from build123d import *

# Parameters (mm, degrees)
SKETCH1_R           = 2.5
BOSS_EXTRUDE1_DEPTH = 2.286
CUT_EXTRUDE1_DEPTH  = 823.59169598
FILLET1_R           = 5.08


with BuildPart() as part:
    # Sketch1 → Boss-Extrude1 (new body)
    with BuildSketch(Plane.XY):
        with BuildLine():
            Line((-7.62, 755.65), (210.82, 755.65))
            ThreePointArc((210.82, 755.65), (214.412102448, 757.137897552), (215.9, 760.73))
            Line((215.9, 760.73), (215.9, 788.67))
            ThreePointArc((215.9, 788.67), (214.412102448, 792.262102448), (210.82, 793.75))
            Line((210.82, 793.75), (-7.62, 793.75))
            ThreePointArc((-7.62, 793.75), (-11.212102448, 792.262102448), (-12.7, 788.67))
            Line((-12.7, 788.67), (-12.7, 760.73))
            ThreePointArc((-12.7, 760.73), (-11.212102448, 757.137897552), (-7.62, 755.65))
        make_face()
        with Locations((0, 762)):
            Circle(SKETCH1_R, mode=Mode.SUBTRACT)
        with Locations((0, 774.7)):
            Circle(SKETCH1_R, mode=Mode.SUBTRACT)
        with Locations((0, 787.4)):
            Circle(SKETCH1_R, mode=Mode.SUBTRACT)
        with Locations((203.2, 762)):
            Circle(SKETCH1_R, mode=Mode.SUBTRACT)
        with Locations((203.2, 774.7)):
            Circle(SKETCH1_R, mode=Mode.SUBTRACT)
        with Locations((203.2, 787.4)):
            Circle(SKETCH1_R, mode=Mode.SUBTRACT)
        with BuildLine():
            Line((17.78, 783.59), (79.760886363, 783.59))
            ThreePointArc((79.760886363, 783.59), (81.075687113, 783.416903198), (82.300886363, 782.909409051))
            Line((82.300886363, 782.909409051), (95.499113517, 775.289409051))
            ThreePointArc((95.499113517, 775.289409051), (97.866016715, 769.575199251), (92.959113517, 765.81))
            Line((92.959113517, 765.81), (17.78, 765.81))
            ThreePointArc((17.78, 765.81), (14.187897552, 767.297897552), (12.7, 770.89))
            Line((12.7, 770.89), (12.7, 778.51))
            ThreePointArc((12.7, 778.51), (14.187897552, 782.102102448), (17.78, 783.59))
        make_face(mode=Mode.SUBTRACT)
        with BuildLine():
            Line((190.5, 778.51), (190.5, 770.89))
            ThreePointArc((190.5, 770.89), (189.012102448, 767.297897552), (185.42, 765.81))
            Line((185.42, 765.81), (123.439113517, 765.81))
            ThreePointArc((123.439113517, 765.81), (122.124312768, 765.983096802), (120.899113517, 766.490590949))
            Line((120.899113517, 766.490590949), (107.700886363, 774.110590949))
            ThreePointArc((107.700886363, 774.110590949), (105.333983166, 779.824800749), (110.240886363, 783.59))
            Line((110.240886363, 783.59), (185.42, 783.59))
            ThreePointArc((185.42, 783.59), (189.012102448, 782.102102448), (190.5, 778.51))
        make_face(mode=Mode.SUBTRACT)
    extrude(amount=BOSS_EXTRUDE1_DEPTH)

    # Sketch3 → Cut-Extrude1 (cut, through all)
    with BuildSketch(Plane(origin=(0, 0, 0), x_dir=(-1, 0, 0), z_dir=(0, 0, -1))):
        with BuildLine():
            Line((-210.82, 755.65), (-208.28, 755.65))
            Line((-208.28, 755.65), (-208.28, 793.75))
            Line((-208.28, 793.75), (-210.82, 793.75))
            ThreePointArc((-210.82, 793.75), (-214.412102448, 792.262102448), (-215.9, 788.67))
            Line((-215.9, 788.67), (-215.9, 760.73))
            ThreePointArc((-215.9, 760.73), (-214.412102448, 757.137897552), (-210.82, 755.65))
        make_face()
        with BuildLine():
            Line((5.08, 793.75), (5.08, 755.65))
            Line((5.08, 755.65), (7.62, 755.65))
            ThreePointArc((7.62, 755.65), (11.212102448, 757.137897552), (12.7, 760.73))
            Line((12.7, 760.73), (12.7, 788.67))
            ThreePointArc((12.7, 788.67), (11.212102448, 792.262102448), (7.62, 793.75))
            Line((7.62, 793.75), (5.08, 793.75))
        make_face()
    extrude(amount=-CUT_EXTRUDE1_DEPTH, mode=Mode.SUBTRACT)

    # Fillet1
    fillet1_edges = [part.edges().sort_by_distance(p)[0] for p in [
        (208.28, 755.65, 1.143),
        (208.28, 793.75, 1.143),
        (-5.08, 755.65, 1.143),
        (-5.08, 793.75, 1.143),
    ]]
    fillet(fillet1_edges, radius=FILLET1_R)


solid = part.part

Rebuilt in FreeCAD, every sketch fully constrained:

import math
import FreeCAD as App
import Part
import Sketcher
from FreeCAD import Vector
Q = App.Units.Quantity


def edges_at(feature, points):
    """Names of the edges that pass closest to the given points."""
    edges = feature.Shape.Edges
    near = lambda p: min(range(len(edges)), key=lambda i: edges[i].distToShape(Part.Vertex(*p))[0])
    return sorted({f"Edge{near(p) + 1}" for p in points})

doc = App.newDocument("Part")
params = doc.addObject("Spreadsheet::Sheet", "Params")
for row, (alias, value) in enumerate([
    ("sketch1_radius", "0.2 in"),
    ("sketch1_width", "8.6 in"),
    ("sketch1_height", "1.1 in"),
    ("sketch1_height2", "0.3 in"),
    ("pad1_length", "0.09 in"),
    ("sketch2_radius", "0.2 in"),
    ("sketch2_width", "0.1 in"),
    ("sketch2_height", "1.5 in"),
    ("fillet_radius", "0.2 in"),
], start=1):
    params.set(f"A{row}", alias)
    params.set(f"B{row}", "=" + value)
    params.setAlias(f"B{row}", alias)

body = doc.addObject("PartDesign::Body", "Body")

# Sketch on XY plane
sketch1 = doc.addObject("Sketcher::SketchObject", "Sketch")
body.addObject(sketch1)
sketch1.AttachmentSupport = (doc.XY_Plane, [""])
sketch1.MapMode = "FlatFace"
sketch1.addGeometry([
    Part.LineSegment(Vector(-7.6, 755.6, 0), Vector(210.8, 755.6, 0)),  # 0
    Part.ArcOfCircle(Part.Circle(Vector(210.8, 760.7, 0), Vector(0, 0, 1), 5.1), math.radians(-90), math.radians(0)),  # 1
    Part.LineSegment(Vector(215.9, 760.7, 0), Vector(215.9, 788.7, 0)),  # 2
    Part.ArcOfCircle(Part.Circle(Vector(210.8, 788.7, 0), Vector(0, 0, 1), 5.1), math.radians(0), math.radians(90)),  # 3
    Part.LineSegment(Vector(210.8, 793.8, 0), Vector(-7.6, 793.8, 0)),  # 4
    Part.ArcOfCircle(Part.Circle(Vector(-7.6, 788.7, 0), Vector(0, 0, 1), 5.1), math.radians(90), math.radians(180)),  # 5
    Part.LineSegment(Vector(-12.7, 788.7, 0), Vector(-12.7, 760.7, 0)),  # 6
    Part.ArcOfCircle(Part.Circle(Vector(-7.6, 760.7, 0), Vector(0, 0, 1), 5.1), math.radians(-180), math.radians(-90)),  # 7
    Part.Circle(Vector(0, 762, 0), Vector(0, 0, 1), 2.5),  # 8
    Part.ArcOfCircle(Part.Circle(Vector(17.8, 778.5, 0), Vector(0, 0, 1), 5.1), math.radians(90), math.radians(180)),  # 9
    Part.LineSegment(Vector(17.8, 783.6, 0), Vector(79.8, 783.6, 0)),  # 10
    Part.ArcOfCircle(Part.Circle(Vector(79.8, 778.5, 0), Vector(0, 0, 1), 5.1), math.radians(60), math.radians(90)),  # 11
    Part.LineSegment(Vector(82.3, 782.9, 0), Vector(95.5, 775.3, 0)),  # 12
    Part.ArcOfCircle(Part.Circle(Vector(93, 770.9, 0), Vector(0, 0, 1), 5.1), math.radians(-90), math.radians(60)),  # 13
    Part.LineSegment(Vector(93, 765.8, 0), Vector(17.8, 765.8, 0)),  # 14
    Part.ArcOfCircle(Part.Circle(Vector(17.8, 770.9, 0), Vector(0, 0, 1), 5.1), math.radians(-180), math.radians(-90)),  # 15
    Part.LineSegment(Vector(12.7, 770.9, 0), Vector(12.7, 778.5, 0)),  # 16
    Part.Circle(Vector(203.2, 762, 0), Vector(0, 0, 1), 2.5),  # 17
    Part.Circle(Vector(0, 774.7, 0), Vector(0, 0, 1), 2.5),  # 18
    Part.Circle(Vector(0, 787.4, 0), Vector(0, 0, 1), 2.5),  # 19
    Part.ArcOfCircle(Part.Circle(Vector(185.4, 778.5, 0), Vector(0, 0, 1), 5.1), math.radians(0), math.radians(90)),  # 20
    Part.LineSegment(Vector(190.5, 778.5, 0), Vector(190.5, 770.9, 0)),  # 21
    Part.ArcOfCircle(Part.Circle(Vector(185.4, 770.9, 0), Vector(0, 0, 1), 5.1), math.radians(-90), math.radians(0)),  # 22
    Part.LineSegment(Vector(185.4, 765.8, 0), Vector(123.4, 765.8, 0)),  # 23
    Part.ArcOfCircle(Part.Circle(Vector(123.4, 770.9, 0), Vector(0, 0, 1), 5.1), math.radians(-120), math.radians(-90)),  # 24
    Part.LineSegment(Vector(120.9, 766.5, 0), Vector(107.7, 774.1, 0)),  # 25
    Part.ArcOfCircle(Part.Circle(Vector(110.2, 778.5, 0), Vector(0, 0, 1), 5.1), math.radians(90), math.radians(240)),  # 26
    Part.LineSegment(Vector(110.2, 783.6, 0), Vector(185.4, 783.6, 0)),  # 27
    Part.Circle(Vector(203.2, 774.7, 0), Vector(0, 0, 1), 2.5),  # 28
    Part.Circle(Vector(203.2, 787.4, 0), Vector(0, 0, 1), 2.5),  # 29
], False)
sketch1.addConstraint([
    Sketcher.Constraint("Tangent", 0, 2, 1, 1),
    Sketcher.Constraint("Tangent", 1, 2, 2, 1),
    Sketcher.Constraint("Tangent", 2, 2, 3, 1),
    Sketcher.Constraint("Tangent", 3, 2, 4, 1),
    Sketcher.Constraint("Tangent", 4, 2, 5, 1),
    Sketcher.Constraint("Tangent", 5, 2, 6, 1),
    Sketcher.Constraint("Tangent", 6, 2, 7, 1),
    Sketcher.Constraint("Tangent", 7, 2, 0, 1),
    Sketcher.Constraint("Tangent", 9, 1, 10, 1),
    Sketcher.Constraint("Tangent", 10, 2, 11, 2),
    Sketcher.Constraint("Tangent", 11, 1, 12, 1),
    Sketcher.Constraint("Tangent", 12, 2, 13, 2),
    Sketcher.Constraint("Tangent", 13, 1, 14, 1),
    Sketcher.Constraint("Tangent", 14, 2, 15, 2),
    Sketcher.Constraint("Tangent", 15, 1, 16, 1),
    Sketcher.Constraint("Tangent", 16, 2, 9, 2),
    Sketcher.Constraint("Tangent", 20, 1, 21, 1),
    Sketcher.Constraint("Tangent", 21, 2, 22, 2),
    Sketcher.Constraint("Tangent", 22, 1, 23, 1),
    Sketcher.Constraint("Tangent", 23, 2, 24, 2),
    Sketcher.Constraint("Tangent", 24, 1, 25, 1),
    Sketcher.Constraint("Tangent", 25, 2, 26, 2),
    Sketcher.Constraint("Tangent", 26, 1, 27, 1),
    Sketcher.Constraint("Tangent", 27, 2, 20, 2),
    Sketcher.Constraint("Horizontal", 0),
    Sketcher.Constraint("Vertical", 2),
    Sketcher.Constraint("Horizontal", 4),
    Sketcher.Constraint("Vertical", 6),
    Sketcher.Constraint("Horizontal", 10),
    Sketcher.Constraint("Horizontal", 14),
    Sketcher.Constraint("Vertical", 16),
    Sketcher.Constraint("Vertical", 21),
    Sketcher.Constraint("Horizontal", 23),
    Sketcher.Constraint("Horizontal", 27),
    Sketcher.Constraint("Equal", 1, 3),
    Sketcher.Constraint("Equal", 3, 5),
    Sketcher.Constraint("Equal", 5, 7),
    Sketcher.Constraint("Equal", 7, 9),
    Sketcher.Constraint("Equal", 9, 11),
    Sketcher.Constraint("Equal", 11, 13),
    Sketcher.Constraint("Equal", 13, 15),
    Sketcher.Constraint("Equal", 8, 17),
    Sketcher.Constraint("Equal", 17, 18),
    Sketcher.Constraint("Equal", 18, 19),
    Sketcher.Constraint("Equal", 15, 20),
    Sketcher.Constraint("Equal", 20, 22),
    Sketcher.Constraint("Equal", 22, 24),
    Sketcher.Constraint("Equal", 24, 26),
    Sketcher.Constraint("Equal", 19, 28),
    Sketcher.Constraint("Equal", 28, 29),
    Sketcher.Constraint("PointOnObject", 8, 3, -2),
    Sketcher.Constraint("PointOnObject", 18, 3, -2),
    Sketcher.Constraint("PointOnObject", 19, 3, -2),
    Sketcher.Constraint("Parallel", 12, 25),
    Sketcher.Constraint("Horizontal", 8, 3, 17, 3),
    Sketcher.Constraint("Horizontal", 11, 3, 20, 3),
    Sketcher.Constraint("Horizontal", 15, 3, 22, 3),
    Sketcher.Constraint("Horizontal", 18, 3, 28, 3),
    Sketcher.Constraint("Horizontal", 19, 3, 29, 3),
    Sketcher.Constraint("Vertical", 17, 3, 28, 3),
    Sketcher.Constraint("Vertical", 28, 3, 29, 3),
    Sketcher.Constraint("Equal", 10, 23),
    Sketcher.Constraint("Radius", 1, Q("0.2 in")),
    Sketcher.Constraint("DistanceX", 0, 1, 0, 2, Q("8.6 in")),
    Sketcher.Constraint("DistanceY", 2, 1, 2, 2, Q("1.1 in")),
    Sketcher.Constraint("DistanceY", 16, 1, 16, 2, Q("0.3 in")),
    Sketcher.Constraint("DistanceY", -1, 1, 8, 3, Q("30 in")),
    Sketcher.Constraint("DistanceX", -1, 1, 17, 3, Q("8 in")),
    Sketcher.Constraint("DistanceY", -1, 1, 19, 3, Q("31 in")),
    Sketcher.Constraint("Angle", 12, Q("-30 deg")),
    Sketcher.Constraint("DistanceX", 5, 3, 9, 3, Q("1 in")),
    Sketcher.Constraint("DistanceX", 20, 3, 3, 3, Q("1 in")),
    Sketcher.Constraint("DistanceX", 12, 2, 24, 1, Q("1 in")),
    Sketcher.Constraint("DistanceX", -1, 1, 1, 3, Q("8.3 in")),
    Sketcher.Constraint("DistanceY", -1, 1, 18, 3, Q("30.5 in")),
    Sketcher.Constraint("DistanceY", 9, 3, 5, 3, Q("0.4 in")),
    Sketcher.Constraint("Diameter", 8, 5.0),
    Sketcher.Constraint("DistanceY", -1, 1, 1, 3, Q("29.95 in")),
])
sketch1.setExpression("Constraints[62]", "Params.sketch1_radius")
sketch1.setExpression("Constraints[63]", "Params.sketch1_width")
sketch1.setExpression("Constraints[64]", "Params.sketch1_height")
sketch1.setExpression("Constraints[65]", "Params.sketch1_height2")
pad1 = doc.addObject("PartDesign::Pad", "Pad")
body.addObject(pad1)
pad1.Profile = sketch1
pad1.setExpression("Length", "Params.pad1_length")

# Sketch on XY plane
sketch2 = doc.addObject("Sketcher::SketchObject", "Sketch001")
body.addObject(sketch2)
sketch2.AttachmentSupport = (doc.XY_Plane, [""])
sketch2.MapMode = "FlatFace"
sketch2.addGeometry([
    Part.LineSegment(Vector(210.8, 755.6, 0), Vector(208.3, 755.6, 0)),  # 0
    Part.LineSegment(Vector(208.3, 755.6, 0), Vector(208.3, 793.8, 0)),  # 1
    Part.LineSegment(Vector(208.3, 793.8, 0), Vector(210.8, 793.8, 0)),  # 2
    Part.ArcOfCircle(Part.Circle(Vector(210.8, 788.7, 0), Vector(0, 0, 1), 5.1), math.radians(0), math.radians(90)),  # 3
    Part.LineSegment(Vector(215.9, 788.7, 0), Vector(215.9, 760.7, 0)),  # 4
    Part.ArcOfCircle(Part.Circle(Vector(210.8, 760.7, 0), Vector(0, 0, 1), 5.1), math.radians(-90), math.radians(0)),  # 5
    Part.LineSegment(Vector(-5.1, 793.8, 0), Vector(-5.1, 755.6, 0)),  # 6
    Part.LineSegment(Vector(-5.1, 755.6, 0), Vector(-7.6, 755.6, 0)),  # 7
    Part.ArcOfCircle(Part.Circle(Vector(-7.6, 760.7, 0), Vector(0, 0, 1), 5.1), math.radians(-180), math.radians(-90)),  # 8
    Part.LineSegment(Vector(-12.7, 760.7, 0), Vector(-12.7, 788.7, 0)),  # 9
    Part.ArcOfCircle(Part.Circle(Vector(-7.6, 788.7, 0), Vector(0, 0, 1), 5.1), math.radians(90), math.radians(180)),  # 10
    Part.LineSegment(Vector(-7.6, 793.8, 0), Vector(-5.1, 793.8, 0)),  # 11
], False)
sketch2.addConstraint([
    Sketcher.Constraint("Coincident", 0, 2, 1, 1),
    Sketcher.Constraint("Coincident", 1, 2, 2, 1),
    Sketcher.Constraint("Tangent", 2, 2, 3, 2),
    Sketcher.Constraint("Tangent", 3, 1, 4, 1),
    Sketcher.Constraint("Tangent", 4, 2, 5, 2),
    Sketcher.Constraint("Tangent", 5, 1, 0, 1),
    Sketcher.Constraint("Coincident", 6, 2, 7, 1),
    Sketcher.Constraint("Tangent", 7, 2, 8, 2),
    Sketcher.Constraint("Tangent", 8, 1, 9, 1),
    Sketcher.Constraint("Tangent", 9, 2, 10, 2),
    Sketcher.Constraint("Tangent", 10, 1, 11, 1),
    Sketcher.Constraint("Coincident", 11, 2, 6, 1),
    Sketcher.Constraint("Horizontal", 0),
    Sketcher.Constraint("Vertical", 1),
    Sketcher.Constraint("Horizontal", 2),
    Sketcher.Constraint("Vertical", 4),
    Sketcher.Constraint("Vertical", 6),
    Sketcher.Constraint("Horizontal", 7),
    Sketcher.Constraint("Vertical", 9),
    Sketcher.Constraint("Horizontal", 11),
    Sketcher.Constraint("Equal", 3, 5),
    Sketcher.Constraint("Equal", 5, 8),
    Sketcher.Constraint("Equal", 8, 10),
    Sketcher.Constraint("Horizontal", 5, 3, 8, 3),
    Sketcher.Constraint("Horizontal", 3, 3, 10, 3),
    Sketcher.Constraint("Equal", 2, 7),
    Sketcher.Constraint("Radius", 3, Q("0.2 in")),
    Sketcher.Constraint("DistanceX", 0, 2, 0, 1, Q("0.1 in")),
    Sketcher.Constraint("DistanceY", 1, 1, 1, 2, Q("1.5 in")),
    Sketcher.Constraint("DistanceX", -1, 1, 3, 3, Q("8.3 in")),
    Sketcher.Constraint("DistanceX", 8, 3, -1, 1, Q("0.3 in")),
    Sketcher.Constraint("DistanceY", -1, 1, 3, 3, Q("31.05 in")),
])
sketch2.setExpression("Constraints[26]", "Params.sketch2_radius")
sketch2.setExpression("Constraints[27]", "Params.sketch2_width")
sketch2.setExpression("Constraints[28]", "Params.sketch2_height")
pocket1 = doc.addObject("PartDesign::Pocket", "Pocket")
body.addObject(pocket1)
pocket1.Profile = sketch2
pocket1.Type = "ThroughAll"
pocket1.Reversed = True
doc.recompute()

fillet = doc.addObject("PartDesign::Fillet", "Fillet")
body.addObject(fillet)
fillet.Base = (pocket1, edges_at(pocket1, [
    (208.28, 755.65, 1.143),
    (208.28, 793.75, 1.143),
    (-5.08, 755.65, 1.143),
    (-5.08, 793.75, 1.143),
]))
fillet.setExpression("Radius", "Params.fillet_radius")

doc.recompute()
